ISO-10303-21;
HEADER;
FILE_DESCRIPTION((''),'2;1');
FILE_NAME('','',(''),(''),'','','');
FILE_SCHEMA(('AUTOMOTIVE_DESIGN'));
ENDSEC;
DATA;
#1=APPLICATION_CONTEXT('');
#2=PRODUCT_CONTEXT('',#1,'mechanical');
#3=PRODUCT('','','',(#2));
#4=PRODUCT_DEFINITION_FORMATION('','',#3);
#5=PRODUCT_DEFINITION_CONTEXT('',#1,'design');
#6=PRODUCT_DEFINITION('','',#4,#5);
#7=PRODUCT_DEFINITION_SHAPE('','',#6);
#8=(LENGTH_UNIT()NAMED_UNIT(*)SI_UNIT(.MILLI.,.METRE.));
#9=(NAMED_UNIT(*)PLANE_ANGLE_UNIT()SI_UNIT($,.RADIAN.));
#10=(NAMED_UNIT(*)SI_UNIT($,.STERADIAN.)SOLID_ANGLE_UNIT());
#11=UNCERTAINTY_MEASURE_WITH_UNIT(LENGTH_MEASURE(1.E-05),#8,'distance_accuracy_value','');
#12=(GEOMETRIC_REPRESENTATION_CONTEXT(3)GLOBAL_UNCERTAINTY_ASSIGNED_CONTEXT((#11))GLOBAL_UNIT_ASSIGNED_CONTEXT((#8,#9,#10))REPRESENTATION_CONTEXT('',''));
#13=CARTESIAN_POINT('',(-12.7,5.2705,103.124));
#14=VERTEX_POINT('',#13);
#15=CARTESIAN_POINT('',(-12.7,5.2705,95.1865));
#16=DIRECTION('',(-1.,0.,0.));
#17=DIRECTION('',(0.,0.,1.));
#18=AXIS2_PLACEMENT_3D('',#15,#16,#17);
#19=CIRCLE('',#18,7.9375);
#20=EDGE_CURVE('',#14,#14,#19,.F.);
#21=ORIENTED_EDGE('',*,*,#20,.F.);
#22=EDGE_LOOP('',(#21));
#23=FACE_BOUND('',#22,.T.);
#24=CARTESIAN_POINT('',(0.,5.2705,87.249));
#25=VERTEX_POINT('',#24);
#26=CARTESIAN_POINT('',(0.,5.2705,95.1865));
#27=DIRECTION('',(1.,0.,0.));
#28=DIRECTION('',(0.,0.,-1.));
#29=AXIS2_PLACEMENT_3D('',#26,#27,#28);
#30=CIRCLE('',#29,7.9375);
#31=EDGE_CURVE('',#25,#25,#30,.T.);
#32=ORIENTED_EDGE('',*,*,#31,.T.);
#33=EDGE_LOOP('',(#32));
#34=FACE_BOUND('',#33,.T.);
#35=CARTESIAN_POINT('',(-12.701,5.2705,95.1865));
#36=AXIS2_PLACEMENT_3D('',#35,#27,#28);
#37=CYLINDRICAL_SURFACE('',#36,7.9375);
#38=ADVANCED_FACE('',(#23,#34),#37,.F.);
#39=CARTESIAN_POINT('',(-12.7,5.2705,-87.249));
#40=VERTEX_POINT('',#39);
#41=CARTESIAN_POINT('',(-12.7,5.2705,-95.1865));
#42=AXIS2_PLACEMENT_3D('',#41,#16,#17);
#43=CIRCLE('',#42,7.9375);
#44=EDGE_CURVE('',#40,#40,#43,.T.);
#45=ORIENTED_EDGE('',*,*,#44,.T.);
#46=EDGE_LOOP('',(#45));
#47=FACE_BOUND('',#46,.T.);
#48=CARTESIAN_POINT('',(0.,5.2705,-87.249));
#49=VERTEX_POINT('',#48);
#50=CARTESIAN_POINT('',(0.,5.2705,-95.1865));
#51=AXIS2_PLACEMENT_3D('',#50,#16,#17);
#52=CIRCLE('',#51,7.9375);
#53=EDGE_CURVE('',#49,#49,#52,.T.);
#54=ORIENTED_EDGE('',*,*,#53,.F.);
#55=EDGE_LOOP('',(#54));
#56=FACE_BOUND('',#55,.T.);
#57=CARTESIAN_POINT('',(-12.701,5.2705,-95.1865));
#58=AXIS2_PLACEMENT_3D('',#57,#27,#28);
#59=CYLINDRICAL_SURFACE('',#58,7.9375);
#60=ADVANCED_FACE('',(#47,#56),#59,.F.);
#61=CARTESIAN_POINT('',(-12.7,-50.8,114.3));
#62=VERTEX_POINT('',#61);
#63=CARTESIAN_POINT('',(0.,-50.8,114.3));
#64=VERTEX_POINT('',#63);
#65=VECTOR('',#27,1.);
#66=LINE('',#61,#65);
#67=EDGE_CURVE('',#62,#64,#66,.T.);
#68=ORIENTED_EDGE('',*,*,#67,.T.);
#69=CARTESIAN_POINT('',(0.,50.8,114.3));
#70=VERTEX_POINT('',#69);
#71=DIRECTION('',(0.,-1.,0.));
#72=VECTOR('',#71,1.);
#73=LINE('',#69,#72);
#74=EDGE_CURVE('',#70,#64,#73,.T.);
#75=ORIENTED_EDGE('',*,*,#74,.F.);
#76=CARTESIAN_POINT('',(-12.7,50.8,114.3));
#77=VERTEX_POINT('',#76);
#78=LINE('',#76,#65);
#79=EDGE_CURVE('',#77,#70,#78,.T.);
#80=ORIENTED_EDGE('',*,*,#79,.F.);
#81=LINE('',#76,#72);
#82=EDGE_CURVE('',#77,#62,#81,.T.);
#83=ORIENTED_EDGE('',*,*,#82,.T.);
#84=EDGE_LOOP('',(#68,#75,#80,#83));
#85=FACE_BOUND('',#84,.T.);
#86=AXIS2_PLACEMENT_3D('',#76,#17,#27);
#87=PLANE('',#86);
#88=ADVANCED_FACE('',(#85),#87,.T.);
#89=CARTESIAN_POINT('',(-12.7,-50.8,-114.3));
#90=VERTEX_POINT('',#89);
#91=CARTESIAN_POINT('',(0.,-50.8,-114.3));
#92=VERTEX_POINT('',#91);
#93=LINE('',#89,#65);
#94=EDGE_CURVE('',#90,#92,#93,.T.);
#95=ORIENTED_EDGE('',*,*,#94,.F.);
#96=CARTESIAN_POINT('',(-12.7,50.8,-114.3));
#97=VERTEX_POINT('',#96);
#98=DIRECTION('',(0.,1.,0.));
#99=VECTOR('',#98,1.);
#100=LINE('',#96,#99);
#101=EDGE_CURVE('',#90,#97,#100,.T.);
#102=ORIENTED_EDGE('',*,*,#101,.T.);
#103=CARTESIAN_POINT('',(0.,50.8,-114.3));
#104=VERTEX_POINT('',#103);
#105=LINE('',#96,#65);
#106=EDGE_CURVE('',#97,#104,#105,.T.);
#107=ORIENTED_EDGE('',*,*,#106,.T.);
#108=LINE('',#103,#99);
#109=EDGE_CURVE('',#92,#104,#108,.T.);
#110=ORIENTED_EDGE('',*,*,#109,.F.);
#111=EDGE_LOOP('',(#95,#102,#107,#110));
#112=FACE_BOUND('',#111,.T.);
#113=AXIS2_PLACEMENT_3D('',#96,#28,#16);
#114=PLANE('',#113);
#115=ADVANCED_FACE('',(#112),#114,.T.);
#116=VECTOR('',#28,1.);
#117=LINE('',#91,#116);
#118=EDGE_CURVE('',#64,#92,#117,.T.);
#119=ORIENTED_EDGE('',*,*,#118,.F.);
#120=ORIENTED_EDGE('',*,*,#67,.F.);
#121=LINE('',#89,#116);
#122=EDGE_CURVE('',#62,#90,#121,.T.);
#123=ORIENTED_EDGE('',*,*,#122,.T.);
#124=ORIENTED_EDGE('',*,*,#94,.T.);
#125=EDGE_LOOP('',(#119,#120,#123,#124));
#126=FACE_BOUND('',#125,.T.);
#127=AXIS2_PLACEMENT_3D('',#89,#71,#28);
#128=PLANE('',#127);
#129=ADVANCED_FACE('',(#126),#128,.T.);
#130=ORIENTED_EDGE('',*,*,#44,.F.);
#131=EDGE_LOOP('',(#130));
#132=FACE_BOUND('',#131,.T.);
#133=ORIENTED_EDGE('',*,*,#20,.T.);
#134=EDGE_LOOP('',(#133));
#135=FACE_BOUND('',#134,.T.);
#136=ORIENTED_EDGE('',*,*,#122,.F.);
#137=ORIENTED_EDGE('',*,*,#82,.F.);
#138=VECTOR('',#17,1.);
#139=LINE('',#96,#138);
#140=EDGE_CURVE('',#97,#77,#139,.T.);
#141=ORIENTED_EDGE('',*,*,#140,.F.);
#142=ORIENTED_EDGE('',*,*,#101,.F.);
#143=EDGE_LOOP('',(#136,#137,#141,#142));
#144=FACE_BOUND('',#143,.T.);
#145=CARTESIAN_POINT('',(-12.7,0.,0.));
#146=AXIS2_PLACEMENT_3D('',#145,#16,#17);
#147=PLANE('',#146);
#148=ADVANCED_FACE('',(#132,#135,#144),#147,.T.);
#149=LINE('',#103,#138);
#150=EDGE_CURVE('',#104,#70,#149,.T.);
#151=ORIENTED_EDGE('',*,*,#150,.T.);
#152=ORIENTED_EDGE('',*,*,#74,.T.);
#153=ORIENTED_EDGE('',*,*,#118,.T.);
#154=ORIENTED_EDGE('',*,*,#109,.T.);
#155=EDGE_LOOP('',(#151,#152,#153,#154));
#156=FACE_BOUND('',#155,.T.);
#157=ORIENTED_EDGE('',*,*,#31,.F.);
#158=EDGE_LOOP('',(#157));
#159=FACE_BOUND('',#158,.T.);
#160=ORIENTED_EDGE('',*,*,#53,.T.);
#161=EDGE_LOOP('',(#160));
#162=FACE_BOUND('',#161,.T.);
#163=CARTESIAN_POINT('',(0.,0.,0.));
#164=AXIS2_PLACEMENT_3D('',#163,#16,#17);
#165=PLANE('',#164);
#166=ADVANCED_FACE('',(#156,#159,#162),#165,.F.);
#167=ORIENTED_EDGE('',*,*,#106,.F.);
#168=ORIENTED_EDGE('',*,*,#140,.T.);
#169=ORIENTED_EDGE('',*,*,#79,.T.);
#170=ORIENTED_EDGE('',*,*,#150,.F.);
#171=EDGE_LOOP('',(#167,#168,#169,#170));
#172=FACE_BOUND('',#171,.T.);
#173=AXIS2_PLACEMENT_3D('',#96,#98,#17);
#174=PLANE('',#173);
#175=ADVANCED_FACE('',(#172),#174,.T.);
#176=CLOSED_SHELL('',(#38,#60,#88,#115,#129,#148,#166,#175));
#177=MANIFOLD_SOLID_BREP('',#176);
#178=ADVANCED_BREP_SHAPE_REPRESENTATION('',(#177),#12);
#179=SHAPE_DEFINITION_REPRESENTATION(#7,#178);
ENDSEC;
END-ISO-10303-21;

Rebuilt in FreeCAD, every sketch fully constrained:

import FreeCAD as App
import Part
import Sketcher
from FreeCAD import Vector
Q = App.Units.Quantity

doc = App.newDocument("Part")
body = doc.addObject("PartDesign::Body", "Body")

sketch1 = body.newObject("Sketcher::SketchObject", "Sketch")
sketch1.AttachmentSupport = (doc.getObject("YZ_Plane"), [""])
sketch1.MapMode = "FlatFace"
sketch1.addGeometry([
    Part.LineSegment(Vector(51, 114, 0), Vector(-51, 114, 0)),
    Part.LineSegment(Vector(-51, 114, 0), Vector(-51, -114, 0)),
    Part.LineSegment(Vector(-51, -114, 0), Vector(51, -114, 0)),
    Part.LineSegment(Vector(51, -114, 0), Vector(51, 114, 0)),
], False)
sketch1.addConstraint([
    Sketcher.Constraint("Coincident", 0, 2, 1, 1),
    Sketcher.Constraint("Coincident", 1, 2, 2, 1),
    Sketcher.Constraint("Coincident", 2, 2, 3, 1),
    Sketcher.Constraint("Coincident", 3, 2, 0, 1),
    Sketcher.Constraint("Horizontal", 0),
    Sketcher.Constraint("Vertical", 1),
    Sketcher.Constraint("Horizontal", 2),
    Sketcher.Constraint("Vertical", 3),
    Sketcher.Constraint("Symmetric", 0, 2, 2, 2, -1, 1),
    Sketcher.Constraint("DistanceX", 0, 2, 0, 1, Q("4 in")),
    Sketcher.Constraint("DistanceY", 1, 2, 1, 1, Q("9 in")),
])
pad1 = body.newObject("PartDesign::Pad", "Pad")
pad1.Profile = sketch1
pad1.Length = Q("0.5 in")
pad1.Reversed = True

sketch2 = body.newObject("Sketcher::SketchObject", "Sketch001")
sketch2.AttachmentSupport = (doc.getObject("YZ_Plane"), [""])
sketch2.MapMode = "FlatFace"
sketch2.addGeometry(Part.Circle(Vector(5, 95, 0), Vector(0, 0, 1), 8), False)
sketch2.addConstraint([
    Sketcher.Constraint("Diameter", 0, Q("0.625 in")),
    Sketcher.Constraint("DistanceX", -1, 1, 0, 3, Q("0.2075 in")),
    Sketcher.Constraint("DistanceY", -1, 1, 0, 3, Q("3.7475 in")),
])
pocket1 = body.newObject("PartDesign::Pocket", "Pocket")
pocket1.Profile = sketch2
pocket1.Length = Q("0.5 in")
doc.recompute()

mirrored = body.newObject("PartDesign::Mirrored", "Mirrored")
mirrored.Originals = [pocket1]
mirrored.MirrorPlane = (doc.getObject("XY_Plane"), [""])
body.Tip = mirrored

doc.recompute()
